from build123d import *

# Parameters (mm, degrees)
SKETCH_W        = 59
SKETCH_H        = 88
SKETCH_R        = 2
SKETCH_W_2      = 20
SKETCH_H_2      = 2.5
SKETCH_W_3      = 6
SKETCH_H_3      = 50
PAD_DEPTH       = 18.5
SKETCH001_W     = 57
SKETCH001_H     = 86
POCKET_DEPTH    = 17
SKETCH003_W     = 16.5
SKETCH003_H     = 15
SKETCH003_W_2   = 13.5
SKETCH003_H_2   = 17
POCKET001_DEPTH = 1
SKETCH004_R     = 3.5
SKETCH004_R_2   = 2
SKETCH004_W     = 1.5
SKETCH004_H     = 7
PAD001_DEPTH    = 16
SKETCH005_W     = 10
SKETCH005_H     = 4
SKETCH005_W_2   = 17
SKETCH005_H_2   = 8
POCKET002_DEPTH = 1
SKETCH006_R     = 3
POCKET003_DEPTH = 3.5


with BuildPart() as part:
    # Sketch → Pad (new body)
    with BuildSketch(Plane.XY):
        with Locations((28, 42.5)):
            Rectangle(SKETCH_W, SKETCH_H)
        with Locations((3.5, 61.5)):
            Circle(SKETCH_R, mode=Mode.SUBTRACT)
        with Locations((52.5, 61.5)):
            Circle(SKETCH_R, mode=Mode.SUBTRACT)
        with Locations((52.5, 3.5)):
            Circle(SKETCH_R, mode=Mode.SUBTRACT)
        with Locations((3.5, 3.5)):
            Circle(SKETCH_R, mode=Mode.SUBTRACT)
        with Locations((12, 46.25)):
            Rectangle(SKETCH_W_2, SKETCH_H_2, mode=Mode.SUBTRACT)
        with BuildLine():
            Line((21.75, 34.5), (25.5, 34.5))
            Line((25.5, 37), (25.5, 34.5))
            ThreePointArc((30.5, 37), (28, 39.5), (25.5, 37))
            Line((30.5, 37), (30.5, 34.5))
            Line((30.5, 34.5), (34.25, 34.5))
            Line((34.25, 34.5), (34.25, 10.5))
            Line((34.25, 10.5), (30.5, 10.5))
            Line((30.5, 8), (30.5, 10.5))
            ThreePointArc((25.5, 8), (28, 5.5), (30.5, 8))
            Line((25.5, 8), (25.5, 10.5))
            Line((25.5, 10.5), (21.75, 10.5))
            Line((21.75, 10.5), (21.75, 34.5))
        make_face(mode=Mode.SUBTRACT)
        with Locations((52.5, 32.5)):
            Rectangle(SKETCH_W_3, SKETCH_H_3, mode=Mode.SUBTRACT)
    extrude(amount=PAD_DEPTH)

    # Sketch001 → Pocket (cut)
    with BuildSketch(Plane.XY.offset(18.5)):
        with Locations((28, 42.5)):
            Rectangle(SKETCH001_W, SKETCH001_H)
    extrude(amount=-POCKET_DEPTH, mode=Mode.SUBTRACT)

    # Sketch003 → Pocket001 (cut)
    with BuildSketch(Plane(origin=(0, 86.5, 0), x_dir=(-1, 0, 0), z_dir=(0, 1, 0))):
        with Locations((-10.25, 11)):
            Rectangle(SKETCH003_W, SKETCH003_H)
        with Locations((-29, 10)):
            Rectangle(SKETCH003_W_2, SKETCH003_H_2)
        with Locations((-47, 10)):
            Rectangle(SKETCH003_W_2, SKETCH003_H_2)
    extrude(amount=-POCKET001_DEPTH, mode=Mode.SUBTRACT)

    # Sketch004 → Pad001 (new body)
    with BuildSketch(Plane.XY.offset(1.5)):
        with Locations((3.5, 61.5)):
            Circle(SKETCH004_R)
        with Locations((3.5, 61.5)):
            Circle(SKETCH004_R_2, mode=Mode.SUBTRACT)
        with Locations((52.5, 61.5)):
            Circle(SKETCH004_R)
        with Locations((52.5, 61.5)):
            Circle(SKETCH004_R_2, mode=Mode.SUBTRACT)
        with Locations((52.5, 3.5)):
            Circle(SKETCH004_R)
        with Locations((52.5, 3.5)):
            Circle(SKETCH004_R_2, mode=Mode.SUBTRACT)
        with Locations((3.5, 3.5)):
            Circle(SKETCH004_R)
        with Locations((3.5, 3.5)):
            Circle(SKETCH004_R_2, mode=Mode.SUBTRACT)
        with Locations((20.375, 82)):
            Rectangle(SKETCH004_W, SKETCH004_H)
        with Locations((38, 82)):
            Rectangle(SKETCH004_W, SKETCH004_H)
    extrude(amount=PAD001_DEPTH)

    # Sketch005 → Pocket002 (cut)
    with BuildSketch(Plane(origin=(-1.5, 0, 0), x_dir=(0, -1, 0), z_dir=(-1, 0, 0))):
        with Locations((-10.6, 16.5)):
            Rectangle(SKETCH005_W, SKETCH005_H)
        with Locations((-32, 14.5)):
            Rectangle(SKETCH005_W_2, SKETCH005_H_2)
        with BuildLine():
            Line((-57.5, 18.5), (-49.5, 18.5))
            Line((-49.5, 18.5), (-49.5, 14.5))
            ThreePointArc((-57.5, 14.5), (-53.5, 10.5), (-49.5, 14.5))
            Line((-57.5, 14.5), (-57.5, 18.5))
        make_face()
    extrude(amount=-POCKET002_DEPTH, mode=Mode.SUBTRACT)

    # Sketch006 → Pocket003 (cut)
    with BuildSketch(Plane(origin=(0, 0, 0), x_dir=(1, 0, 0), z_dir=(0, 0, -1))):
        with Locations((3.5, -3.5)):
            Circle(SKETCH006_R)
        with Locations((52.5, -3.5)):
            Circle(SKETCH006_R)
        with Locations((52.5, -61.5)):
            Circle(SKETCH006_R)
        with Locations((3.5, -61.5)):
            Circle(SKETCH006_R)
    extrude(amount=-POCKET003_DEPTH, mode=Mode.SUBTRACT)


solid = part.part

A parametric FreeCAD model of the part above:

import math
import FreeCAD as App
import Part
import Sketcher

doc = App.newDocument("Part")
params = doc.addObject("Spreadsheet::Sheet", "Params")
for row, (alias, value) in enumerate([
    ("sketch1_diameter", "4 mm"),
    ("sketch1_radius", "2.5 mm"),
    ("sketch1_width", "59 mm"),
    ("sketch1_width2", "20 mm"),
    ("sketch1_width3", "6 mm"),
    ("pad1_length", "18.5 mm"),
    ("sketch2_width", "57 mm"),
    ("sketch2_height", "86 mm"),
    ("pocket1_length", "17 mm"),
    ("sketch3_height", "15 mm"),
    ("sketch3_height2", "17 mm"),
    ("sketch3_width", "16.5 mm"),
    ("sketch3_width2", "13.5 mm"),
    ("pocket2_length", "1 mm"),
    ("sketch4_diameter", "7 mm"),
    ("sketch4_diameter2", "4 mm"),
    ("sketch4_height", "7 mm"),
    ("sketch4_width", "1.5 mm"),
    ("pad2_length", "16 mm"),
    ("sketch5_radius", "4 mm"),
    ("sketch5_width", "10 mm"),
    ("sketch5_width2", "17 mm"),
    ("sketch5_height", "4 mm"),
    ("pocket3_length", "1 mm"),
    ("sketch6_diameter", "6 mm"),
    ("pocket4_length", "3.5 mm"),
], start=1):
    params.set(f"A{row}", alias)
    params.set(f"B{row}", "=" + value)
    params.setAlias(f"B{row}", alias)

body = doc.addObject("PartDesign::Body", "Body")

sketch1 = body.newObject("Sketcher::SketchObject", "Sketch")
sketch1.AttachmentSupport = (doc.getObject("XY_Plane"), [""])
sketch1.MapMode = "FlatFace"
sketch1.addGeometry([
    Part.LineSegment(App.Vector(-1.5, 86.5, 0), App.Vector(-1.5, -1.5, 0)),
    Part.LineSegment(App.Vector(-1.5, -1.5, 0), App.Vector(57.5, -1.5, 0)),
    Part.LineSegment(App.Vector(57.5, -1.5, 0), App.Vector(57.5, 86.5, 0)),
    Part.LineSegment(App.Vector(57.5, 86.5, 0), App.Vector(-1.5, 86.5, 0)),
    Part.Circle(App.Vector(3.5, 3.5, 0), App.Vector(0, 0, 1), 2),
    Part.LineSegment(App.Vector(21.75, 10.5, 0), App.Vector(21.75, 34.5, 0)),
    Part.LineSegment(App.Vector(21.75, 34.5, 0), App.Vector(25.5, 34.5, 0)),
    Part.LineSegment(App.Vector(25.5, 34.5, 0), App.Vector(25.5, 37, 0)),
    Part.ArcOfCircle(Part.Circle(App.Vector(28, 37, 0), App.Vector(0, 0, 1), 2.5), math.radians(0), math.radians(180)),
    Part.LineSegment(App.Vector(30.5, 37, 0), App.Vector(30.5, 34.5, 0)),
    Part.LineSegment(App.Vector(30.5, 34.5, 0), App.Vector(34.25, 34.5, 0)),
    Part.LineSegment(App.Vector(34.25, 34.5, 0), App.Vector(34.25, 10.5, 0)),
    Part.LineSegment(App.Vector(34.25, 10.5, 0), App.Vector(30.5, 10.5, 0)),
    Part.LineSegment(App.Vector(30.5, 10.5, 0), App.Vector(30.5, 8, 0)),
    Part.ArcOfCircle(Part.Circle(App.Vector(28, 8, 0), App.Vector(0, 0, 1), 2.5), math.radians(180), math.radians(360)),
    Part.LineSegment(App.Vector(25.5, 8, 0), App.Vector(25.5, 10.5, 0)),
    Part.LineSegment(App.Vector(25.5, 10.5, 0), App.Vector(21.75, 10.5, 0)),
    Part.Circle(App.Vector(52.5, 3.5, 0), App.Vector(0, 0, 1), 2),
    Part.LineSegment(App.Vector(22, 45, 0), App.Vector(2, 45, 0)),
    Part.LineSegment(App.Vector(2, 45, 0), App.Vector(2, 47.5, 0)),
    Part.LineSegment(App.Vector(2, 47.5, 0), App.Vector(22, 47.5, 0)),
    Part.LineSegment(App.Vector(22, 47.5, 0), App.Vector(22, 45, 0)),
    Part.Circle(App.Vector(3.5, 61.5, 0), App.Vector(0, 0, 1), 2),
    Part.LineSegment(App.Vector(55.5, 7.5, 0), App.Vector(49.5, 7.5, 0)),
    Part.LineSegment(App.Vector(49.5, 7.5, 0), App.Vector(49.5, 57.5, 0)),
    Part.LineSegment(App.Vector(49.5, 57.5, 0), App.Vector(55.5, 57.5, 0)),
    Part.LineSegment(App.Vector(55.5, 57.5, 0), App.Vector(55.5, 7.5, 0)),
    Part.Circle(App.Vector(52.5, 61.5, 0), App.Vector(0, 0, 1), 2),
], False)
sketch1.addConstraint([
    Sketcher.Constraint("Coincident", 0, 2, 1, 1),
    Sketcher.Constraint("Coincident", 1, 2, 2, 1),
    Sketcher.Constraint("Coincident", 2, 2, 3, 1),
    Sketcher.Constraint("Coincident", 3, 2, 0, 1),
    Sketcher.Constraint("Coincident", 5, 2, 6, 1),
    Sketcher.Constraint("Coincident", 6, 2, 7, 1),
    Sketcher.Constraint("Tangent", 7, 2, 8, 2),
    Sketcher.Constraint("Tangent", 8, 1, 9, 1),
    Sketcher.Constraint("Coincident", 9, 2, 10, 1),
    Sketcher.Constraint("Coincident", 10, 2, 11, 1),
    Sketcher.Constraint("Coincident", 11, 2, 12, 1),
    Sketcher.Constraint("Coincident", 12, 2, 13, 1),
    Sketcher.Constraint("Tangent", 13, 2, 14, 2),
    Sketcher.Constraint("Tangent", 14, 1, 15, 1),
    Sketcher.Constraint("Coincident", 15, 2, 16, 1),
    Sketcher.Constraint("Coincident", 16, 2, 5, 1),
    Sketcher.Constraint("Coincident", 18, 2, 19, 1),
    Sketcher.Constraint("Coincident", 19, 2, 20, 1),
    Sketcher.Constraint("Coincident", 20, 2, 21, 1),
    Sketcher.Constraint("Coincident", 21, 2, 18, 1),
    Sketcher.Constraint("Coincident", 23, 2, 24, 1),
    Sketcher.Constraint("Coincident", 24, 2, 25, 1),
    Sketcher.Constraint("Coincident", 25, 2, 26, 1),
    Sketcher.Constraint("Coincident", 26, 2, 23, 1),
    Sketcher.Constraint("Vertical", 0),
    Sketcher.Constraint("Horizontal", 1),
    Sketcher.Constraint("Vertical", 2),
    Sketcher.Constraint("Horizontal", 3),
    Sketcher.Constraint("Vertical", 5),
    Sketcher.Constraint("Horizontal", 6),
    Sketcher.Constraint("Vertical", 7),
    Sketcher.Constraint("Vertical", 9),
    Sketcher.Constraint("Horizontal", 10),
    Sketcher.Constraint("Vertical", 11),
    Sketcher.Constraint("Horizontal", 12),
    Sketcher.Constraint("Vertical", 13),
    Sketcher.Constraint("Vertical", 15),
    Sketcher.Constraint("Horizontal", 16),
    Sketcher.Constraint("Horizontal", 18),
    Sketcher.Constraint("Vertical", 19),
    Sketcher.Constraint("Horizontal", 20),
    Sketcher.Constraint("Vertical", 21),
    Sketcher.Constraint("Horizontal", 23),
    Sketcher.Constraint("Vertical", 24),
    Sketcher.Constraint("Horizontal", 25),
    Sketcher.Constraint("Vertical", 26),
    Sketcher.Constraint("Equal", 8, 14),
    Sketcher.Constraint("Equal", 4, 17),
    Sketcher.Constraint("Equal", 17, 22),
    Sketcher.Constraint("Equal", 22, 27),
    Sketcher.Constraint("Horizontal", 4, 3, 17, 3),
    Sketcher.Constraint("Horizontal", 22, 3, 27, 3),
    Sketcher.Constraint("Horizontal", 6, 2, 9, 2),
    Sketcher.Constraint("Horizontal", 12, 2, 15, 2),
    Sketcher.Constraint("Vertical", 8, 3, 14, 3),
    Sketcher.Constraint("Vertical", 4, 3, 22, 3),
    Sketcher.Constraint("Vertical", 17, 3, 27, 3),
    Sketcher.Constraint("Equal", 6, 10),
    Sketcher.Constraint("Equal", 9, 13),
    Sketcher.Constraint("Equal", 15, 19),
    Sketcher.Constraint("Diameter", 4, 4.0),
    Sketcher.Constraint("Radius", 8, 2.5),
    Sketcher.Constraint("DistanceX", 1, 1, 1, 2, 59.0),
    Sketcher.Constraint("DistanceX", 18, 2, 18, 1, 20.0),
    Sketcher.Constraint("DistanceX", 23, 2, 23, 1, 6.0),
    Sketcher.Constraint("DistanceY", 0, 2, 0, 1, 88.0),
    Sketcher.Constraint("DistanceY", 5, 1, 5, 2, 24.0),
    Sketcher.Constraint("DistanceY", 24, 1, 24, 2, 50.0),
    Sketcher.Constraint("DistanceY", 7, 1, 7, 2, 2.5),
    Sketcher.Constraint("DistanceX", -1, 1, 8, 3, 28.0),
    Sketcher.Constraint("DistanceY", -1, 1, 8, 3, 37.0),
    Sketcher.Constraint("DistanceX", -1, 1, 18, 2, 2.0),
    Sketcher.Constraint("DistanceY", -1, 1, 18, 2, 45.0),
    Sketcher.Constraint("DistanceX", 4, 3, 17, 3, 49.0),
    Sketcher.Constraint("DistanceY", 4, 3, 22, 3, 58.0),
    Sketcher.Constraint("DistanceX", 0, 2, 4, 3, 5.0),
    Sketcher.Constraint("DistanceY", 0, 2, 4, 3, 5.0),
    Sketcher.Constraint("DistanceY", 5, 2, 22, 3, 27.0),
    Sketcher.Constraint("DistanceX", 22, 3, 6, 2, 22.0),
    Sketcher.Constraint("DistanceX", 23, 2, 17, 3, 3.0),
    Sketcher.Constraint("DistanceY", 17, 3, 23, 2, 4.0),
    Sketcher.Constraint("DistanceX", 6, 1, 6, 2, 3.75),
])
sketch1.setExpression("Constraints[60]", "Params.sketch1_diameter")
sketch1.setExpression("Constraints[61]", "Params.sketch1_radius")
sketch1.setExpression("Constraints[62]", "Params.sketch1_width")
sketch1.setExpression("Constraints[63]", "Params.sketch1_width2")
sketch1.setExpression("Constraints[64]", "Params.sketch1_width3")
pad1 = body.newObject("PartDesign::Pad", "Pad")
pad1.Profile = sketch1
pad1.setExpression("Length", "Params.pad1_length")

sketch2 = body.newObject("Sketcher::SketchObject", "Sketch001")
sketch2.AttachmentSupport = (doc.getObject("XY_Plane"), [""])
sketch2.MapMode = "FlatFace"
sketch2.AttachmentOffset = App.Placement(App.Vector(0, 0, 18.5), App.Rotation())
sketch2.addGeometry([
    Part.LineSegment(App.Vector(-0.5, 85.5, 0), App.Vector(-0.5, -0.5, 0)),
    Part.LineSegment(App.Vector(-0.5, -0.5, 0), App.Vector(56.5, -0.5, 0)),
    Part.LineSegment(App.Vector(56.5, -0.5, 0), App.Vector(56.5, 85.5, 0)),
    Part.LineSegment(App.Vector(56.5, 85.5, 0), App.Vector(-0.5, 85.5, 0)),
], False)
sketch2.addConstraint([
    Sketcher.Constraint("Coincident", 0, 2, 1, 1),
    Sketcher.Constraint("Coincident", 1, 2, 2, 1),
    Sketcher.Constraint("Coincident", 2, 2, 3, 1),
    Sketcher.Constraint("Coincident", 3, 2, 0, 1),
    Sketcher.Constraint("Vertical", 0),
    Sketcher.Constraint("Horizontal", 1),
    Sketcher.Constraint("Vertical", 2),
    Sketcher.Constraint("Horizontal", 3),
    Sketcher.Constraint("DistanceX", 1, 1, 1, 2, 57.0),
    Sketcher.Constraint("DistanceY", 0, 2, 0, 1, 86.0),
    Sketcher.Constraint("DistanceX", 0, 2, -1, 1, 0.5),
    Sketcher.Constraint("DistanceY", 0, 2, -1, 1, 0.5),
])
sketch2.setExpression("Constraints[8]", "Params.sketch2_width")
sketch2.setExpression("Constraints[9]", "Params.sketch2_height")
pocket1 = body.newObject("PartDesign::Pocket", "Pocket")
pocket1.Profile = sketch2
pocket1.setExpression("Length", "Params.pocket1_length")

sketch3 = body.newObject("Sketcher::SketchObject", "Sketch002")
sketch3.AttachmentSupport = (doc.getObject("XZ_Plane"), [""])
sketch3.MapMode = "FlatFace"
sketch3.AttachmentOffset = App.Placement(App.Vector(0, 0, -86.5), App.Rotation())
sketch3.addGeometry([
    Part.LineSegment(App.Vector(18.5, 18.5, 0), App.Vector(18.5, 3.5, 0)),
    Part.LineSegment(App.Vector(18.5, 3.5, 0), App.Vector(2, 3.5, 0)),
    Part.LineSegment(App.Vector(2, 3.5, 0), App.Vector(2, 18.5, 0)),
    Part.LineSegment(App.Vector(2, 18.5, 0), App.Vector(18.5, 18.5, 0)),
    Part.LineSegment(App.Vector(35.75, 18.5, 0), App.Vector(35.75, 1.5, 0)),
    Part.LineSegment(App.Vector(35.75, 1.5, 0), App.Vector(22.25, 1.5, 0)),
    Part.LineSegment(App.Vector(22.25, 1.5, 0), App.Vector(22.25, 18.5, 0)),
    Part.LineSegment(App.Vector(22.25, 18.5, 0), App.Vector(35.75, 18.5, 0)),
    Part.LineSegment(App.Vector(53.75, 18.5, 0), App.Vector(53.75, 1.5, 0)),
    Part.LineSegment(App.Vector(53.75, 1.5, 0), App.Vector(40.25, 1.5, 0)),
    Part.LineSegment(App.Vector(40.25, 1.5, 0), App.Vector(40.25, 18.5, 0)),
    Part.LineSegment(App.Vector(40.25, 18.5, 0), App.Vector(53.75, 18.5, 0)),
], False)
sketch3.addConstraint([
    Sketcher.Constraint("Coincident", 0, 2, 1, 1),
    Sketcher.Constraint("Coincident", 1, 2, 2, 1),
    Sketcher.Constraint("Coincident", 2, 2, 3, 1),
    Sketcher.Constraint("Coincident", 3, 2, 0, 1),
    Sketcher.Constraint("Coincident", 4, 2, 5, 1),
    Sketcher.Constraint("Coincident", 5, 2, 6, 1),
    Sketcher.Constraint("Coincident", 6, 2, 7, 1),
    Sketcher.Constraint("Coincident", 7, 2, 4, 1),
    Sketcher.Constraint("Coincident", 8, 2, 9, 1),
    Sketcher.Constraint("Coincident", 9, 2, 10, 1),
    Sketcher.Constraint("Coincident", 10, 2, 11, 1),
    Sketcher.Constraint("Coincident", 11, 2, 8, 1),
    Sketcher.Constraint("Vertical", 0),
    Sketcher.Constraint("Horizontal", 1),
    Sketcher.Constraint("Vertical", 2),
    Sketcher.Constraint("Horizontal", 3),
    Sketcher.Constraint("Vertical", 4),
    Sketcher.Constraint("Horizontal", 5),
    Sketcher.Constraint("Vertical", 6),
    Sketcher.Constraint("Horizontal", 7),
    Sketcher.Constraint("Vertical", 8),
    Sketcher.Constraint("Horizontal", 9),
    Sketcher.Constraint("Vertical", 10),
    Sketcher.Constraint("Horizontal", 11),
    Sketcher.Constraint("Horizontal", 3, 2, 6, 2),
    Sketcher.Constraint("Horizontal", 5, 2, 8, 2),
    Sketcher.Constraint("Horizontal", 7, 2, 10, 2),
    Sketcher.Constraint("Equal", 7, 9),
    Sketcher.Constraint("DistanceY", 0, 2, 0, 1, 15.0),
    Sketcher.Constraint("DistanceY", 4, 2, 4, 1, 17.0),
    Sketcher.Constraint("DistanceX", 1, 2, 1, 1, 16.5),
    Sketcher.Constraint("DistanceX", 5, 2, 5, 1, 13.5),
    Sketcher.Constraint("DistanceX", -1, 1, 1, 2, 2.0),
    Sketcher.Constraint("DistanceX", 4, 2, 8, 2, 18.0),
    Sketcher.Constraint("DistanceY", -1, 1, 0, 2, 3.5),
    Sketcher.Constraint("DistanceX", -1, 1, 4, 2, 35.75),
])
sketch3.setExpression("Constraints[28]", "Params.sketch3_height")
sketch3.setExpression("Constraints[29]", "Params.sketch3_height2")
sketch3.setExpression("Constraints[30]", "Params.sketch3_width")
sketch3.setExpression("Constraints[31]", "Params.sketch3_width2")
pocket2 = body.newObject("PartDesign::Pocket", "Pocket001")
pocket2.Profile = sketch3
pocket2.setExpression("Length", "Params.pocket2_length")
pocket2.Reversed = True

sketch4 = body.newObject("Sketcher::SketchObject", "Sketch003")
sketch4.AttachmentSupport = (doc.getObject("XY_Plane"), [""])
sketch4.MapMode = "FlatFace"
sketch4.AttachmentOffset = App.Placement(App.Vector(0, 0, 1.5), App.Rotation())
sketch4.addGeometry([
    Part.Circle(App.Vector(3.5, 61.5, 0), App.Vector(0, 0, 1), 3.5),
    Part.Circle(App.Vector(3.5, 61.5, 0), App.Vector(0, 0, 1), 2),
    Part.Circle(App.Vector(52.5, 61.5, 0), App.Vector(0, 0, 1), 3.5),
    Part.Circle(App.Vector(52.5, 61.5, 0), App.Vector(0, 0, 1), 2),
    Part.Circle(App.Vector(52.5, 3.5, 0), App.Vector(0, 0, 1), 3.5),
    Part.Circle(App.Vector(52.5, 3.5, 0), App.Vector(0, 0, 1), 2),
    Part.Circle(App.Vector(3.5, 3.5, 0), App.Vector(0, 0, 1), 3.5),
    Part.Circle(App.Vector(3.5, 3.5, 0), App.Vector(0, 0, 1), 2),
    Part.LineSegment(App.Vector(19.625, 85.5, 0), App.Vector(19.625, 78.5, 0)),
    Part.LineSegment(App.Vector(19.625, 78.5, 0), App.Vector(21.125, 78.5, 0)),
    Part.LineSegment(App.Vector(21.125, 78.5, 0), App.Vector(21.125, 85.5, 0)),
    Part.LineSegment(App.Vector(21.125, 85.5, 0), App.Vector(19.625, 85.5, 0)),
    Part.LineSegment(App.Vector(37.25, 85.5, 0), App.Vector(37.25, 78.5, 0)),
    Part.LineSegment(App.Vector(37.25, 78.5, 0), App.Vector(38.75, 78.5, 0)),
    Part.LineSegment(App.Vector(38.75, 78.5, 0), App.Vector(38.75, 85.5, 0)),
    Part.LineSegment(App.Vector(38.75, 85.5, 0), App.Vector(37.25, 85.5, 0)),
], False)
sketch4.addConstraint([
    Sketcher.Constraint("Coincident", 8, 2, 9, 1),
    Sketcher.Constraint("Coincident", 9, 2, 10, 1),
    Sketcher.Constraint("Coincident", 10, 2, 11, 1),
    Sketcher.Constraint("Coincident", 11, 2, 8, 1),
    Sketcher.Constraint("Coincident", 12, 2, 13, 1),
    Sketcher.Constraint("Coincident", 13, 2, 14, 1),
    Sketcher.Constraint("Coincident", 14, 2, 15, 1),
    Sketcher.Constraint("Coincident", 15, 2, 12, 1),
    Sketcher.Constraint("Vertical", 8),
    Sketcher.Constraint("Horizontal", 9),
    Sketcher.Constraint("Vertical", 10),
    Sketcher.Constraint("Horizontal", 11),
    Sketcher.Constraint("Vertical", 12),
    Sketcher.Constraint("Horizontal", 13),
    Sketcher.Constraint("Vertical", 14),
    Sketcher.Constraint("Horizontal", 15),
    Sketcher.Constraint("Coincident", 1, 3, 0, 3),
    Sketcher.Constraint("Coincident", 3, 3, 2, 3),
    Sketcher.Constraint("Coincident", 5, 3, 4, 3),
    Sketcher.Constraint("Coincident", 7, 3, 6, 3),
    Sketcher.Constraint("Equal", 0, 2),
    Sketcher.Constraint("Equal", 1, 3),
    Sketcher.Constraint("Equal", 2, 4),
    Sketcher.Constraint("Equal", 3, 5),
    Sketcher.Constraint("Equal", 4, 6),
    Sketcher.Constraint("Equal", 5, 7),
    Sketcher.Constraint("Horizontal", 1, 3, 2, 3),
    Sketcher.Constraint("Horizontal", 5, 3, 6, 3),
    Sketcher.Constraint("Horizontal", 9, 2, 12, 2),
    Sketcher.Constraint("Horizontal", 11, 2, 14, 2),
    Sketcher.Constraint("Vertical", 3, 3, 4, 3),
    Sketcher.Constraint("Vertical", 1, 3, 6, 3),
    Sketcher.Constraint("Equal", 11, 13),
    Sketcher.Constraint("Diameter", 0, 7.0),
    Sketcher.Constraint("Diameter", 1, 4.0),
    Sketcher.Constraint("DistanceY", 8, 2, 8, 1, 7.0),
    Sketcher.Constraint("DistanceX", 9, 1, 9, 2, 1.5),
    Sketcher.Constraint("DistanceX", 0, 3, 2, 3, 49.0),
    Sketcher.Constraint("DistanceY", 4, 3, 2, 3, 58.0),
    Sketcher.Constraint("DistanceY", 0, 3, 8, 2, 17.0),
    Sketcher.Constraint("DistanceX", -1, 1, 0, 3, 3.5),
    Sketcher.Constraint("DistanceY", -1, 1, 0, 3, 61.5),
    Sketcher.Constraint("DistanceX", -1, 1, 12, 2, 37.25),
    Sketcher.Constraint("DistanceX", -1, 1, 8, 2, 19.625),
])
sketch4.setExpression("Constraints[33]", "Params.sketch4_diameter")
sketch4.setExpression("Constraints[34]", "Params.sketch4_diameter2")
sketch4.setExpression("Constraints[35]", "Params.sketch4_height")
sketch4.setExpression("Constraints[36]", "Params.sketch4_width")
pad2 = body.newObject("PartDesign::Pad", "Pad001")
pad2.Profile = sketch4
pad2.setExpression("Length", "Params.pad2_length")

sketch5 = body.newObject("Sketcher::SketchObject", "Sketch004")
sketch5.AttachmentSupport = (doc.getObject("YZ_Plane"), [""])
sketch5.MapMode = "FlatFace"
sketch5.AttachmentOffset = App.Placement(App.Vector(0, 0, -1.5), App.Rotation())
sketch5.addGeometry([
    Part.LineSegment(App.Vector(15.6, 18.5, 0), App.Vector(15.6, 14.5, 0)),
    Part.LineSegment(App.Vector(15.6, 14.5, 0), App.Vector(5.6, 14.5, 0)),
    Part.LineSegment(App.Vector(5.6, 14.5, 0), App.Vector(5.6, 18.5, 0)),
    Part.LineSegment(App.Vector(5.6, 18.5, 0), App.Vector(15.6, 18.5, 0)),
    Part.LineSegment(App.Vector(40.5, 18.5, 0), App.Vector(40.5, 10.5, 0)),
    Part.LineSegment(App.Vector(40.5, 10.5, 0), App.Vector(23.5, 10.5, 0)),
    Part.LineSegment(App.Vector(23.5, 10.5, 0), App.Vector(23.5, 18.5, 0)),
    Part.LineSegment(App.Vector(23.5, 18.5, 0), App.Vector(40.5, 18.5, 0)),
    Part.LineSegment(App.Vector(49.5, 18.5, 0), App.Vector(57.5, 18.5, 0)),
    Part.LineSegment(App.Vector(57.5, 18.5, 0), App.Vector(57.5, 14.5, 0)),
    Part.ArcOfCircle(Part.Circle(App.Vector(53.5, 14.5, 0), App.Vector(0, 0, 1), 4), math.radians(180), math.radians(360)),
    Part.LineSegment(App.Vector(49.5, 14.5, 0), App.Vector(49.5, 18.5, 0)),
], False)
sketch5.addConstraint([
    Sketcher.Constraint("Coincident", 0, 2, 1, 1),
    Sketcher.Constraint("Coincident", 1, 2, 2, 1),
    Sketcher.Constraint("Coincident", 2, 2, 3, 1),
    Sketcher.Constraint("Coincident", 3, 2, 0, 1),
    Sketcher.Constraint("Coincident", 4, 2, 5, 1),
    Sketcher.Constraint("Coincident", 5, 2, 6, 1),
    Sketcher.Constraint("Coincident", 6, 2, 7, 1),
    Sketcher.Constraint("Coincident", 7, 2, 4, 1),
    Sketcher.Constraint("Coincident", 8, 2, 9, 1),
    Sketcher.Constraint("Tangent", 9, 2, 10, 2),
    Sketcher.Constraint("Tangent", 10, 1, 11, 1),
    Sketcher.Constraint("Coincident", 11, 2, 8, 1),
    Sketcher.Constraint("Vertical", 0),
    Sketcher.Constraint("Horizontal", 1),
    Sketcher.Constraint("Vertical", 2),
    Sketcher.Constraint("Horizontal", 3),
    Sketcher.Constraint("Vertical", 4),
    Sketcher.Constraint("Horizontal", 5),
    Sketcher.Constraint("Vertical", 6),
    Sketcher.Constraint("Horizontal", 7),
    Sketcher.Constraint("Horizontal", 8),
    Sketcher.Constraint("Vertical", 9),
    Sketcher.Constraint("Vertical", 11),
    Sketcher.Constraint("Horizontal", 10, 3, 0, 2),
    Sketcher.Constraint("Horizontal", 3, 2, 6, 2),
    Sketcher.Constraint("Horizontal", 7, 2, 8, 2),
    Sketcher.Constraint("Equal", 8, 4),
    Sketcher.Constraint("Radius", 10, 4.0),
    Sketcher.Constraint("DistanceX", 1, 2, 1, 1, 10.0),
    Sketcher.Constraint("DistanceX", 5, 2, 5, 1, 17.0),
    Sketcher.Constraint("DistanceY", 0, 2, 0, 1, 4.0),
    Sketcher.Constraint("DistanceX", 4, 2, 10, 3, 13.0),
    Sketcher.Constraint("DistanceX", -1, 1, 10, 3, 53.5),
    Sketcher.Constraint("DistanceY", -1, 1, 10, 3, 14.5),
    Sketcher.Constraint("DistanceX", -1, 1, 0, 2, 15.6),
])
sketch5.setExpression("Constraints[27]", "Params.sketch5_radius")
sketch5.setExpression("Constraints[28]", "Params.sketch5_width")
sketch5.setExpression("Constraints[29]", "Params.sketch5_width2")
sketch5.setExpression("Constraints[30]", "Params.sketch5_height")
pocket3 = body.newObject("PartDesign::Pocket", "Pocket002")
pocket3.Profile = sketch5
pocket3.setExpression("Length", "Params.pocket3_length")
pocket3.Reversed = True

sketch6 = body.newObject("Sketcher::SketchObject", "Sketch005")
sketch6.AttachmentSupport = (doc.getObject("XY_Plane"), [""])
sketch6.MapMode = "FlatFace"
sketch6.addGeometry([
    Part.Circle(App.Vector(3.5, 3.5, 0), App.Vector(0, 0, 1), 3),
    Part.Circle(App.Vector(52.5, 3.5, 0), App.Vector(0, 0, 1), 3),
    Part.Circle(App.Vector(52.5, 61.5, 0), App.Vector(0, 0, 1), 3),
    Part.Circle(App.Vector(3.5, 61.5, 0), App.Vector(0, 0, 1), 3),
], False)
sketch6.addConstraint([
    Sketcher.Constraint("Equal", 0, 1),
    Sketcher.Constraint("Equal", 1, 2),
    Sketcher.Constraint("Equal", 2, 3),
    Sketcher.Constraint("Horizontal", 0, 3, 1, 3),
    Sketcher.Constraint("Horizontal", 2, 3, 3, 3),
    Sketcher.Constraint("Vertical", 1, 3, 2, 3),
    Sketcher.Constraint("Vertical", 0, 3, 3, 3),
    Sketcher.Constraint("Diameter", 0, 6.0),
    Sketcher.Constraint("DistanceX", 0, 3, 1, 3, 49.0),
    Sketcher.Constraint("DistanceY", 1, 3, 2, 3, 58.0),
    Sketcher.Constraint("DistanceX", -1, 1, 0, 3, 3.5),
    Sketcher.Constraint("DistanceY", -1, 1, 0, 3, 3.5),
])
sketch6.setExpression("Constraints[7]", "Params.sketch6_diameter")
pocket4 = body.newObject("PartDesign::Pocket", "Pocket003")
pocket4.Profile = sketch6
pocket4.setExpression("Length", "Params.pocket4_length")
pocket4.Reversed = True

doc.recompute()
